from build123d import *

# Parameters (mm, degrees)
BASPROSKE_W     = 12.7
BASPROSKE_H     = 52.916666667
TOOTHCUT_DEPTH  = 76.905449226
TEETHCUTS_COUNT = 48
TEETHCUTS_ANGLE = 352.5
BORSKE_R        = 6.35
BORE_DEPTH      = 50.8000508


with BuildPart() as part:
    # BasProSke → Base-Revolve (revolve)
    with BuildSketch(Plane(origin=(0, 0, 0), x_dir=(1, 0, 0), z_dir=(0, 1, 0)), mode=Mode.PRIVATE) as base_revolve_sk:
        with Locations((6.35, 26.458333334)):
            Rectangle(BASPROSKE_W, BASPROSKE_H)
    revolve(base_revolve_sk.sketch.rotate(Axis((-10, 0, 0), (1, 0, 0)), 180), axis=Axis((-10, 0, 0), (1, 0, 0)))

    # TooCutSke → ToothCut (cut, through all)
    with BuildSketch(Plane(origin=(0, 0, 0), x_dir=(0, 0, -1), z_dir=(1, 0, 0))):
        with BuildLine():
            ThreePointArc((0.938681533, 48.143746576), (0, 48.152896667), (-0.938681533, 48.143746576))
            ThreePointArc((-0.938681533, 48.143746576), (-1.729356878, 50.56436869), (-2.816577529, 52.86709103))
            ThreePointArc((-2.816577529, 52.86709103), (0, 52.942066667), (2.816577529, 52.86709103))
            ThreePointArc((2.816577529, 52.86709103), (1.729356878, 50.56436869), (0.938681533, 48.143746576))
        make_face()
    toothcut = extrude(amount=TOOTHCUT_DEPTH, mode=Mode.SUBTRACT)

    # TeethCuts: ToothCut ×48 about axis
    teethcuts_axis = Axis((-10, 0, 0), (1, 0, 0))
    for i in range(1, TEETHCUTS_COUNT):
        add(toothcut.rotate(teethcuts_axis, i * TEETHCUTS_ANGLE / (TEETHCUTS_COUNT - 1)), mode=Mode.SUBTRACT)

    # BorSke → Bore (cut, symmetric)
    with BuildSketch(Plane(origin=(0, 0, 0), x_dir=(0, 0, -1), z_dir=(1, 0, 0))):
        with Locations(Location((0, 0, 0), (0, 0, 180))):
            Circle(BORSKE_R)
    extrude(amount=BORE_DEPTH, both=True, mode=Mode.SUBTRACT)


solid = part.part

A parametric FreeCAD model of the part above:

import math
import FreeCAD as App
import Part
import Sketcher
Q = App.Units.Quantity

doc = App.newDocument("Part")
body = doc.addObject("PartDesign::Body", "Body")

sketch1 = body.newObject("Sketcher::SketchObject", "Sketch")
sketch1.AttachmentSupport = (doc.getObject("XZ_Plane"), [""])
sketch1.MapMode = "FlatFace"
sketch1.addGeometry(Part.LineSegment(App.Vector(0, -53, 0), App.Vector(0, 0, 0)), False)
sketch1.addGeometry(Part.LineSegment(App.Vector(0, 0, 0), App.Vector(13, 0, 0)), False)
sketch1.addGeometry(Part.LineSegment(App.Vector(13, 0, 0), App.Vector(13, -53, 0)), False)
sketch1.addGeometry(Part.LineSegment(App.Vector(13, -53, 0), App.Vector(0, -53, 0)), False)
sketch1.addConstraint(Sketcher.Constraint("Coincident", 0, 2, 1, 1))
sketch1.addConstraint(Sketcher.Constraint("Coincident", 1, 2, 2, 1))
sketch1.addConstraint(Sketcher.Constraint("Coincident", 2, 2, 3, 1))
sketch1.addConstraint(Sketcher.Constraint("Coincident", 3, 2, 0, 1))
sketch1.addConstraint(Sketcher.Constraint("Vertical", 0))
sketch1.addConstraint(Sketcher.Constraint("Horizontal", 1))
sketch1.addConstraint(Sketcher.Constraint("Vertical", 2))
sketch1.addConstraint(Sketcher.Constraint("Horizontal", 3))
sketch1.addConstraint(Sketcher.Constraint("Coincident", 0, 2, -1, 1))
sketch1.addConstraint(Sketcher.Constraint("DistanceX", 1, 1, 1, 2, Q("0.5 in")))
sketch1.addConstraint(Sketcher.Constraint("DistanceY", 0, 1, 0, 2, 52.916667))
revolution = body.newObject("PartDesign::Revolution", "Revolution")
revolution.Profile = sketch1
revolution.ReferenceAxis = (sketch1, ["H_Axis"])
revolution.Angle = 360

sketch2 = body.newObject("Sketcher::SketchObject", "Sketch001")
sketch2.AttachmentSupport = (doc.getObject("YZ_Plane"), [""])
sketch2.MapMode = "FlatFace"
sketch2.addGeometry(Part.ArcOfCircle(Part.Circle(App.Vector(0, 0, 0), App.Vector(0, 0, 1), 48.2), math.radians(-1.12), math.radians(1.12)), False)
sketch2.addGeometry(Part.ArcOfCircle(Part.Circle(App.Vector(43.1, -20.6, 0), App.Vector(0, 0, 1), 20.3), math.radians(61.13), math.radians(75.5)), False)
sketch2.addGeometry(Part.ArcOfCircle(Part.Circle(App.Vector(0, 0, 0), App.Vector(0, 0, 1), 52.9), math.radians(-3.05), math.radians(3.05)), False)
sketch2.addGeometry(Part.ArcOfCircle(Part.Circle(App.Vector(43.1, 20.6, 0), App.Vector(0, 0, 1), 20.3), math.radians(-75.5), math.radians(-61.13)), False)
sketch2.addConstraint(Sketcher.Constraint("Coincident", 0, 1, 1, 2))
sketch2.addConstraint(Sketcher.Constraint("Coincident", 1, 1, 2, 1))
sketch2.addConstraint(Sketcher.Constraint("Coincident", 2, 2, 3, 2))
sketch2.addConstraint(Sketcher.Constraint("Coincident", 3, 1, 0, 2))
sketch2.addConstraint(Sketcher.Constraint("Coincident", 0, 3, -1, 1))
sketch2.addConstraint(Sketcher.Constraint("Coincident", 2, 3, -1, 1))
sketch2.addConstraint(Sketcher.Constraint("Equal", 1, 3))
sketch2.addConstraint(Sketcher.Constraint("Symmetric", 1, 3, 3, 3, -1))
sketch2.addConstraint(Sketcher.Constraint("Radius", 1, Q("0.8 in")))
sketch2.addConstraint(Sketcher.Constraint("Radius", 0, 48.152895))
sketch2.addConstraint(Sketcher.Constraint("Radius", 2, 52.942067))
sketch2.addConstraint(Sketcher.Constraint("DistanceX", -1, 1, 1, 3, 43.057158))
sketch2.addConstraint(Sketcher.Constraint("DistanceY", 0, 1, -1, 1, 0.938682))
pocket1 = body.newObject("PartDesign::Pocket", "Pocket")
pocket1.Profile = sketch2
pocket1.Type = "ThroughAll"
pocket1.Reversed = True
doc.recompute()

polarpattern = body.newObject("PartDesign::PolarPattern", "PolarPattern")
polarpattern.Originals = [pocket1]
polarpattern.Axis = (doc.getObject("X_Axis"), [""])
polarpattern.Angle = 360
polarpattern.Occurrences = 48
body.Tip = polarpattern

sketch3 = body.newObject("Sketcher::SketchObject", "Sketch002")
sketch3.AttachmentSupport = (doc.getObject("YZ_Plane"), [""])
sketch3.MapMode = "FlatFace"
sketch3.addGeometry(Part.Circle(App.Vector(0, 0, 0), App.Vector(0, 0, 1), 6), False)
sketch3.addConstraint(Sketcher.Constraint("Coincident", 0, 3, -1, 1))
sketch3.addConstraint(Sketcher.Constraint("Diameter", 0, Q("0.5 in")))
pocket2 = body.newObject("PartDesign::Pocket", "Pocket001")
pocket2.Profile = sketch3
pocket2.Length = 101.600102
pocket2.Midplane = True

doc.recompute()
